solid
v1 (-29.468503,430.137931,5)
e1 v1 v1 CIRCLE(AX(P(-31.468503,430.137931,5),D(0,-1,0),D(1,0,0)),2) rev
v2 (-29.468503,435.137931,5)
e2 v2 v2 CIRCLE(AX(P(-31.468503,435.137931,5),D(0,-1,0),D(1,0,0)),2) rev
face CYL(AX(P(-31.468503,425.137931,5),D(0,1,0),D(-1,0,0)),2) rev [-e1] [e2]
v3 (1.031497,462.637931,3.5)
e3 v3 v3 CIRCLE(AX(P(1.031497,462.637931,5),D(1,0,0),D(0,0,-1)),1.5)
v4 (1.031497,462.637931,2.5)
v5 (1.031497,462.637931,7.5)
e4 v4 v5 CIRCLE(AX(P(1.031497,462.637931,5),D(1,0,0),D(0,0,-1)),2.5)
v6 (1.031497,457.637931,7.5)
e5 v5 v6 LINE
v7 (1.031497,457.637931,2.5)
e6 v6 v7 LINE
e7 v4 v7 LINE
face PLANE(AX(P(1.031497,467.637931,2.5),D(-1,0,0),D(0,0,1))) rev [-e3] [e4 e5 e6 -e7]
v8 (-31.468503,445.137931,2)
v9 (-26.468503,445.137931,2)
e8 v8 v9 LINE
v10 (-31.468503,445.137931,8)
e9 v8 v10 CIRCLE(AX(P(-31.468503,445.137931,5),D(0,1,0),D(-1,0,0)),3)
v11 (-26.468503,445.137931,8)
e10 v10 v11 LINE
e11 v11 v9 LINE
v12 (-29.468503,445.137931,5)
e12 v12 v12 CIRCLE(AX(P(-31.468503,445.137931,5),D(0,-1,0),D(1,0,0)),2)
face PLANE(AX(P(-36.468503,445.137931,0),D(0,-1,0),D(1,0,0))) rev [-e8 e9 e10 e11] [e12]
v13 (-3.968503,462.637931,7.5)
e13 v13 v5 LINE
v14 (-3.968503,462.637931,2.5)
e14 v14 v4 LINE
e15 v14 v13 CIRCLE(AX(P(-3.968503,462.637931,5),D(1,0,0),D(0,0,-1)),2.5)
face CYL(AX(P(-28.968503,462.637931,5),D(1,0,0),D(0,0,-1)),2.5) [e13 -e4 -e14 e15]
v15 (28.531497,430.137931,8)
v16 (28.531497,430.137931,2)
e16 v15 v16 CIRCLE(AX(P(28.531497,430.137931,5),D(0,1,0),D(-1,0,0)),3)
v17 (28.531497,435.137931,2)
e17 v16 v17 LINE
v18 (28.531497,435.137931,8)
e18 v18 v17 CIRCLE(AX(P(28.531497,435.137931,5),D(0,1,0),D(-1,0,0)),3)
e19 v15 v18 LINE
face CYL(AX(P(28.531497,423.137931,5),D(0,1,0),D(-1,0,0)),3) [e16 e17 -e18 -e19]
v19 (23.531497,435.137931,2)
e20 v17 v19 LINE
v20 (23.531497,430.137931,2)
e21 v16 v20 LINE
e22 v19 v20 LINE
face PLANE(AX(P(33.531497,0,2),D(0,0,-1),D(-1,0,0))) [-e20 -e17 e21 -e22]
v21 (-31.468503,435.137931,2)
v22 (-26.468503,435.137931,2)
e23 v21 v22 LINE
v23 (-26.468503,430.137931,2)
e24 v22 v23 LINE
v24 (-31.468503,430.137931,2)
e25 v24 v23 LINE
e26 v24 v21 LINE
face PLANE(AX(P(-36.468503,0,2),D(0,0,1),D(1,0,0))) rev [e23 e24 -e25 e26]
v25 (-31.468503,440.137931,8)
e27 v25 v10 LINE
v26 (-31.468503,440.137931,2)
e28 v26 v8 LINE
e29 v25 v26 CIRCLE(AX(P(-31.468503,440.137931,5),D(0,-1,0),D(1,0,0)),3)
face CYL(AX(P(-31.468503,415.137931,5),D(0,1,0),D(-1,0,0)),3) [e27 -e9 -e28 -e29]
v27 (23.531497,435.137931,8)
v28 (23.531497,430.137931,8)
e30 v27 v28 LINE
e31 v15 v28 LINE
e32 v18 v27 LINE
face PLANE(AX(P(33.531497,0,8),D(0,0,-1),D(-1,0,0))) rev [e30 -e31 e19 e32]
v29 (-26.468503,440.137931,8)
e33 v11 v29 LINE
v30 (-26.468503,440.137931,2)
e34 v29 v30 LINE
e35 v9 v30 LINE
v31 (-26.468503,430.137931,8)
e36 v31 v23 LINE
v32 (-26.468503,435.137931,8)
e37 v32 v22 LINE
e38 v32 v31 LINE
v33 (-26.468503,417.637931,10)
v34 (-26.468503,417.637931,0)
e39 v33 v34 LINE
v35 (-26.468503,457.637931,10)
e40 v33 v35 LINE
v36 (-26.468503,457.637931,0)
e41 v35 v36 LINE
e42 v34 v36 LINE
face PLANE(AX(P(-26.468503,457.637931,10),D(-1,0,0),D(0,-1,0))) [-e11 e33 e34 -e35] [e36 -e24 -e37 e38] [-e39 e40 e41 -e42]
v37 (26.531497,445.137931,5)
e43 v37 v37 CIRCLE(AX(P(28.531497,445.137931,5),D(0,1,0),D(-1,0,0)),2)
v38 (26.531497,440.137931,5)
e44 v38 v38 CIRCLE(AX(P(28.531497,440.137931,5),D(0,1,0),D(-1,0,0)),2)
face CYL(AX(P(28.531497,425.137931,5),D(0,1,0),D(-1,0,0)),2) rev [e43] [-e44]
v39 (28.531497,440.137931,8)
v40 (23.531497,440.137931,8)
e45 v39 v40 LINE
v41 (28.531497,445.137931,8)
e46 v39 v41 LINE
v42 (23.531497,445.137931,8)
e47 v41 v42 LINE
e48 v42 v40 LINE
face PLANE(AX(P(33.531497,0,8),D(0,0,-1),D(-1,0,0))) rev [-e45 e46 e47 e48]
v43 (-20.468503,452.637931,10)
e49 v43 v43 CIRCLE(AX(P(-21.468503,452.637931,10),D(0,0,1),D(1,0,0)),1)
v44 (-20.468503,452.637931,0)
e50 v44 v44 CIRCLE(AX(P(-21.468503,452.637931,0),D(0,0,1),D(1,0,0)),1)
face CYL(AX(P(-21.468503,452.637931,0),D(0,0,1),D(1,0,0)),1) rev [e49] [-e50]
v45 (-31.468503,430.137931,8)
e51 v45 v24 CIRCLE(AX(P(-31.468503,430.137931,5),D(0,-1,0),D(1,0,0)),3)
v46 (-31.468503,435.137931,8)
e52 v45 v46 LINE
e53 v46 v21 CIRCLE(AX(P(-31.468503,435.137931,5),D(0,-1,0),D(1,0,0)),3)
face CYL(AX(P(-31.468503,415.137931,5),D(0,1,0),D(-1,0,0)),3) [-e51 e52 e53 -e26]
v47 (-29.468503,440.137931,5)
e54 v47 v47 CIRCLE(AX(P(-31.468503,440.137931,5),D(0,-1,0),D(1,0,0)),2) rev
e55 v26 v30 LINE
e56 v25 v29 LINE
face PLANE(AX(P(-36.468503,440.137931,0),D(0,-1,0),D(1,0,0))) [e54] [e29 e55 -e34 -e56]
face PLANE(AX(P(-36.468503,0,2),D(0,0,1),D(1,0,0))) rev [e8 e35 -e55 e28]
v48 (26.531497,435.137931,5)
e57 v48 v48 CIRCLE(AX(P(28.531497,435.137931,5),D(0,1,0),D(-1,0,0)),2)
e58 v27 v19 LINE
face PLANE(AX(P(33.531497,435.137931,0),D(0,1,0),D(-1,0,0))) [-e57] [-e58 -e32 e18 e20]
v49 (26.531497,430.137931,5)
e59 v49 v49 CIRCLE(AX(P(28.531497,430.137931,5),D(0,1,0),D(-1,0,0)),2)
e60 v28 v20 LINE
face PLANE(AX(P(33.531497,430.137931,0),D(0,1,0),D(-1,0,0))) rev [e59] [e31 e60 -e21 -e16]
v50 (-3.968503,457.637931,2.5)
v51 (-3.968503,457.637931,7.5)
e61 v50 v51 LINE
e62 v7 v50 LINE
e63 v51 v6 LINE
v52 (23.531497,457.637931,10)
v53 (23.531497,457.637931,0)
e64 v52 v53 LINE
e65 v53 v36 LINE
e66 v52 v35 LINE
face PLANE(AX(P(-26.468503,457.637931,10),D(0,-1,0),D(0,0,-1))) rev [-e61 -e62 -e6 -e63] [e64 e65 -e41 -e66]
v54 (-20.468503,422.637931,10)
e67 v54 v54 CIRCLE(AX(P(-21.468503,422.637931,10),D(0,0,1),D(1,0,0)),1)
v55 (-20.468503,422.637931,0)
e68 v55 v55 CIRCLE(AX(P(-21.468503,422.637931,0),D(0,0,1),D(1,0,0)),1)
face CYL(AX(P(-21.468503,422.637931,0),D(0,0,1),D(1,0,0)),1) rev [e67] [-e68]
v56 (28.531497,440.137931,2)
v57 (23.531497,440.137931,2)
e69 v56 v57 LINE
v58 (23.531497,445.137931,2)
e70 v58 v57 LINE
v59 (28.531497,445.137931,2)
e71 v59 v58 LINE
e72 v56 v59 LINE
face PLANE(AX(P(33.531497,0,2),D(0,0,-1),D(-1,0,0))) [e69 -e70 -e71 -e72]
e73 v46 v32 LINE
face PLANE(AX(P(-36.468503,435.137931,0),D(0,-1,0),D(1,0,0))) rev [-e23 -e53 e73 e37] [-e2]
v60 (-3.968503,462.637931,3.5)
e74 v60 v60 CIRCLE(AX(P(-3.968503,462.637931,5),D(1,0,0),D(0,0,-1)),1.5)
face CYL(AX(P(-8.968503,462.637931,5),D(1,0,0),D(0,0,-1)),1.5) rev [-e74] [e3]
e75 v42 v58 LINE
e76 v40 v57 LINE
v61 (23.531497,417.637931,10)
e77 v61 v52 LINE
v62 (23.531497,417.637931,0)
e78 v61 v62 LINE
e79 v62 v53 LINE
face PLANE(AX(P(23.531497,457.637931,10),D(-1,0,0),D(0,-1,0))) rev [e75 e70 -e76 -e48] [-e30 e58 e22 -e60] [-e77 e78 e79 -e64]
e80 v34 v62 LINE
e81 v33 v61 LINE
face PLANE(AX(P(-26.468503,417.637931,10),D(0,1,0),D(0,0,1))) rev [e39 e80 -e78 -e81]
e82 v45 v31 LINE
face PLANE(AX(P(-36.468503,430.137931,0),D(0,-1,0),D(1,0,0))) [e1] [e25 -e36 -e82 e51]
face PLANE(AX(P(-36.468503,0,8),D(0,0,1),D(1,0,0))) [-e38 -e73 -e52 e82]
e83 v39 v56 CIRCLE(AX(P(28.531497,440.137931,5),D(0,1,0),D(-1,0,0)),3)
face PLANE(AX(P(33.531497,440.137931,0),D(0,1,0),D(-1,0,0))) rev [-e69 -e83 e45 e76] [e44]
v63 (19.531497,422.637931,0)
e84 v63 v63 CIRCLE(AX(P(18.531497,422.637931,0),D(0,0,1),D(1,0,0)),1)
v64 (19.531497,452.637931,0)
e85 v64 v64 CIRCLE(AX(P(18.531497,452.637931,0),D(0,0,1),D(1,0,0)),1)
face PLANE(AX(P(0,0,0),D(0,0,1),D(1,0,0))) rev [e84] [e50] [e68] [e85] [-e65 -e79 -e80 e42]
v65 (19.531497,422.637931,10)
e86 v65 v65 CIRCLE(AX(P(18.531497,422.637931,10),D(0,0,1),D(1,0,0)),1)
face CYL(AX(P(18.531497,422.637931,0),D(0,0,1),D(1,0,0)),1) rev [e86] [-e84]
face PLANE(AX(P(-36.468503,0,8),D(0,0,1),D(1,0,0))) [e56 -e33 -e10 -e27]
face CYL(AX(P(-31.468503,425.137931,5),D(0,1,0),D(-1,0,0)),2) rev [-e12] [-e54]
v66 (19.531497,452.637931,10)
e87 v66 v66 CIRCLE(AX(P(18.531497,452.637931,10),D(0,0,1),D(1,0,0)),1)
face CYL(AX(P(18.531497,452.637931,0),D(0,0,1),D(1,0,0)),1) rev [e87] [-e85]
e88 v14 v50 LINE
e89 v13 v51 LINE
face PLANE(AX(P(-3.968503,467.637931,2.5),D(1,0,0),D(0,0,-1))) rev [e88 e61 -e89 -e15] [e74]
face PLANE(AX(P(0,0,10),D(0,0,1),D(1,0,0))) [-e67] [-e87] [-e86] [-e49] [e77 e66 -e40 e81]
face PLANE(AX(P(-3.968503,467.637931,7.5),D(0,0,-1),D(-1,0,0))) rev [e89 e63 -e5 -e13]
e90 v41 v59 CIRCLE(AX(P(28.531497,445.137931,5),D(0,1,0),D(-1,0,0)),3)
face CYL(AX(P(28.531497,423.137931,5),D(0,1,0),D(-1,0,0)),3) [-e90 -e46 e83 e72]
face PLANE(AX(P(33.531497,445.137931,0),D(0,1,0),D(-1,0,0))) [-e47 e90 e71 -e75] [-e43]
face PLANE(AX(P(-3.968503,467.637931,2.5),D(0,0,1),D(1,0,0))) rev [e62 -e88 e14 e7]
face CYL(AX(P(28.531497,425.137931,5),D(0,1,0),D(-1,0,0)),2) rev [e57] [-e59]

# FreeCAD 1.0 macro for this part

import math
import FreeCAD as App
import Part
import Sketcher


def add_polygon(sketch, points):
    """Adds a closed chain of lines whose ends are joined by coincident constraints."""
    first, n = sketch.GeometryCount, len(points)
    for a, b in zip(points, points[1:] + points[:1]):
        sketch.addGeometry(Part.LineSegment(App.Vector(*a, 0), App.Vector(*b, 0)), False)
    for i in range(n):
        sketch.addConstraint(Sketcher.Constraint("Coincident", first + i, 2, first + (i + 1) % n, 1))

doc = App.newDocument("Part")
body = doc.addObject("PartDesign::Body", "Body")

# Sketch on XY plane
sketch1 = doc.addObject("Sketcher::SketchObject", "Sketch")
body.addObject(sketch1)
sketch1.AttachmentSupport = (doc.XY_Plane, [""])
sketch1.MapMode = "FlatFace"
add_polygon(sketch1, [(-26, 458), (-26, 418), (24, 418), (24, 458)])  # lines 0-3
sketch1.addConstraint(Sketcher.Constraint("Vertical", 0))
sketch1.addConstraint(Sketcher.Constraint("Horizontal", 1))
sketch1.addConstraint(Sketcher.Constraint("Vertical", 2))
sketch1.addConstraint(Sketcher.Constraint("Horizontal", 3))
sketch1.addConstraint(Sketcher.Constraint("DistanceX", 1, 1, 1, 2, 50.0))
sketch1.addConstraint(Sketcher.Constraint("DistanceY", 0, 2, 0, 1, 40.0))
sketch1.addConstraint(Sketcher.Constraint("DistanceY", -1, 1, 0, 2, 417.637931))
sketch1.addConstraint(Sketcher.Constraint("DistanceX", 0, 2, -1, 1, 26.468503))
pad1 = doc.addObject("PartDesign::Pad", "Pad")
body.addObject(pad1)
pad1.Profile = sketch1
pad1.Length = 10

# Sketch on YZ plane
sketch2 = doc.addObject("Sketcher::SketchObject", "Sketch001")
body.addObject(sketch2)
sketch2.AttachmentSupport = (doc.YZ_Plane, [""])
sketch2.MapMode = "FlatFace"
sketch2.AttachmentOffset = App.Placement(App.Vector(0, 0, 23.531497), App.Rotation())
add_polygon(sketch2, [(445, 8), (440, 8), (440, 2), (445, 2)])  # lines 0-3
add_polygon(sketch2, [(435, 8), (430, 8), (430, 2), (435, 2)])  # lines 4-7
sketch2.addConstraint(Sketcher.Constraint("Horizontal", 0))
sketch2.addConstraint(Sketcher.Constraint("Vertical", 1))
sketch2.addConstraint(Sketcher.Constraint("Horizontal", 2))
sketch2.addConstraint(Sketcher.Constraint("Vertical", 3))
sketch2.addConstraint(Sketcher.Constraint("Horizontal", 4))
sketch2.addConstraint(Sketcher.Constraint("Vertical", 5))
sketch2.addConstraint(Sketcher.Constraint("Horizontal", 6))
sketch2.addConstraint(Sketcher.Constraint("Vertical", 7))
sketch2.addConstraint(Sketcher.Constraint("Horizontal", 3, 2, 4, 2))
sketch2.addConstraint(Sketcher.Constraint("Horizontal", 2, 2, 5, 2))
sketch2.addConstraint(Sketcher.Constraint("Equal", 2, 4))
sketch2.addConstraint(Sketcher.Constraint("DistanceX", 0, 2, 0, 1, 5.0))
sketch2.addConstraint(Sketcher.Constraint("DistanceY", 1, 2, 1, 1, 6.0))
sketch2.addConstraint(Sketcher.Constraint("DistanceY", -1, 1, 0, 2, 8.0))
sketch2.addConstraint(Sketcher.Constraint("DistanceX", 4, 2, 0, 2, 10.0))
sketch2.addConstraint(Sketcher.Constraint("DistanceX", -1, 1, 0, 2, 440.137931))
pad2 = doc.addObject("PartDesign::Pad", "Pad001")
body.addObject(pad2)
pad2.Profile = sketch2
pad2.Length = 10

# Sketch on XZ plane
sketch3 = doc.addObject("Sketcher::SketchObject", "Sketch002")
body.addObject(sketch3)
sketch3.AttachmentSupport = (doc.XZ_Plane, [""])
sketch3.MapMode = "FlatFace"
sketch3.AttachmentOffset = App.Placement(App.Vector(0, 0, -445.137931), App.Rotation())
sketch3.addGeometry(Part.Circle(App.Vector(28.5, 5, 0), App.Vector(0, 0, 1), 2), False)
sketch3.addConstraint(Sketcher.Constraint("Diameter", 0, 4.0))
sketch3.addConstraint(Sketcher.Constraint("DistanceY", -1, 1, 0, 3, 5.0))
sketch3.addConstraint(Sketcher.Constraint("DistanceX", -1, 1, 0, 3, 28.531497))
pocket1 = doc.addObject("PartDesign::Pocket", "Pocket")
body.addObject(pocket1)
pocket1.Profile = sketch3
pocket1.Length = 20
pocket1.Reversed = True

# Sketch on YZ plane
sketch4 = doc.addObject("Sketcher::SketchObject", "Sketch003")
body.addObject(sketch4)
sketch4.AttachmentSupport = (doc.YZ_Plane, [""])
sketch4.MapMode = "FlatFace"
sketch4.AttachmentOffset = App.Placement(App.Vector(0, 0, -26.468503), App.Rotation())
add_polygon(sketch4, [(458, 0), (418, 0), (418, 10), (458, 10)])  # lines 0-3
sketch4.addConstraint(Sketcher.Constraint("Horizontal", 0))
sketch4.addConstraint(Sketcher.Constraint("Vertical", 1))
sketch4.addConstraint(Sketcher.Constraint("Horizontal", 2))
sketch4.addConstraint(Sketcher.Constraint("Vertical", 3))
sketch4.addConstraint(Sketcher.Constraint("PointOnObject", 0, 2, -1))
sketch4.addConstraint(Sketcher.Constraint("DistanceX", 0, 2, 0, 1, 40.0))
sketch4.addConstraint(Sketcher.Constraint("DistanceY", 1, 1, 1, 2, 10.0))
sketch4.addConstraint(Sketcher.Constraint("DistanceX", -1, 1, 0, 2, 417.637931))
pocket2 = doc.addObject("PartDesign::Pocket", "Pocket001")
body.addObject(pocket2)
pocket2.Profile = sketch4
pocket2.Length = 25
pocket2.Reversed = True
doc.recompute()

datumplane = doc.addObject("PartDesign::Plane", "DatumPlane")
body.addObject(datumplane)
datumplane.AttachmentSupport = (doc.YZ_Plane, [""])
datumplane.MapMode = "FlatFace"
datumplane.AttachmentOffset = App.Placement(App.Vector(0, 0, -1.468503), App.Rotation())
mirrored = doc.addObject("PartDesign::Mirrored", "Mirrored")
body.addObject(mirrored)
mirrored.Originals = [pad1, pad2, pocket1]
mirrored.MirrorPlane = (datumplane, [""])
body.Tip = mirrored

# Sketch on XZ plane
sketch5 = doc.addObject("Sketcher::SketchObject", "Sketch004")
body.addObject(sketch5)
sketch5.AttachmentSupport = (doc.XZ_Plane, [""])
sketch5.MapMode = "FlatFace"
sketch5.AttachmentOffset = App.Placement(App.Vector(0, 0, -457.637931), App.Rotation())
add_polygon(sketch5, [(-4, 2), (-4, 8), (1, 8), (1, 2)])  # lines 0-3
sketch5.addConstraint(Sketcher.Constraint("Vertical", 0))
sketch5.addConstraint(Sketcher.Constraint("Horizontal", 1))
sketch5.addConstraint(Sketcher.Constraint("Vertical", 2))
sketch5.addConstraint(Sketcher.Constraint("Horizontal", 3))
sketch5.addConstraint(Sketcher.Constraint("Equal", 3, 0))
sketch5.addConstraint(Sketcher.Constraint("DistanceX", 1, 1, 1, 2, 5.0))
sketch5.addConstraint(Sketcher.Constraint("DistanceY", -1, 1, 0, 2, 7.5))
sketch5.addConstraint(Sketcher.Constraint("DistanceX", 0, 2, -1, 1, 3.968503))
pad3 = doc.addObject("PartDesign::Pad", "Pad002")
body.addObject(pad3)
pad3.Profile = sketch5
pad3.Length = 10
pad3.Reversed = True

# Sketch on YZ plane
sketch6 = doc.addObject("Sketcher::SketchObject", "Sketch005")
body.addObject(sketch6)
sketch6.AttachmentSupport = (doc.YZ_Plane, [""])
sketch6.MapMode = "FlatFace"
sketch6.AttachmentOffset = App.Placement(App.Vector(0, 0, 1.031497), App.Rotation())
sketch6.addGeometry(Part.Circle(App.Vector(462.6, 5, 0), App.Vector(0, 0, 1), 1.5), False)
sketch6.addConstraint(Sketcher.Constraint("Diameter", 0, 3.0))
sketch6.addConstraint(Sketcher.Constraint("DistanceY", -1, 1, 0, 3, 5.0))
sketch6.addConstraint(Sketcher.Constraint("DistanceX", -1, 1, 0, 3, 462.637931))
pocket3 = doc.addObject("PartDesign::Pocket", "Pocket002")
body.addObject(pocket3)
pocket3.Profile = sketch6
pocket3.Length = 10

# Sketch on XY plane
sketch7 = doc.addObject("Sketcher::SketchObject", "Sketch006")
body.addObject(sketch7)
sketch7.AttachmentSupport = (doc.XY_Plane, [""])
sketch7.MapMode = "FlatFace"
sketch7.AttachmentOffset = App.Placement(App.Vector(0, 0, 10), App.Rotation())
sketch7.addGeometry(Part.Circle(App.Vector(-21.5, 452.6, 0), App.Vector(0, 0, 1), 1), False)
sketch7.addGeometry(Part.Circle(App.Vector(-21.5, 422.6, 0), App.Vector(0, 0, 1), 1), False)
sketch7.addGeometry(Part.Circle(App.Vector(18.5, 452.6, 0), App.Vector(0, 0, 1), 1), False)
sketch7.addGeometry(Part.Circle(App.Vector(18.5, 422.6, 0), App.Vector(0, 0, 1), 1), False)
sketch7.addConstraint(Sketcher.Constraint("Equal", 0, 1))
sketch7.addConstraint(Sketcher.Constraint("Equal", 1, 2))
sketch7.addConstraint(Sketcher.Constraint("Equal", 2, 3))
sketch7.addConstraint(Sketcher.Constraint("Horizontal", 0, 3, 2, 3))
sketch7.addConstraint(Sketcher.Constraint("Horizontal", 1, 3, 3, 3))
sketch7.addConstraint(Sketcher.Constraint("Vertical", 0, 3, 1, 3))
sketch7.addConstraint(Sketcher.Constraint("Vertical", 2, 3, 3, 3))
sketch7.addConstraint(Sketcher.Constraint("Diameter", 0, 2.0))
sketch7.addConstraint(Sketcher.Constraint("DistanceY", 1, 3, 0, 3, 30.0))
sketch7.addConstraint(Sketcher.Constraint("DistanceX", 0, 3, 2, 3, 40.0))
sketch7.addConstraint(Sketcher.Constraint("DistanceY", -1, 1, 0, 3, 452.637931))
sketch7.addConstraint(Sketcher.Constraint("DistanceX", 0, 3, -1, 1, 21.468503))
pocket4 = doc.addObject("PartDesign::Pocket", "Pocket003")
body.addObject(pocket4)
pocket4.Profile = sketch7
pocket4.Length = 10

# Sketch on XZ plane
sketch8 = doc.addObject("Sketcher::SketchObject", "Sketch007")
body.addObject(sketch8)
sketch8.AttachmentSupport = (doc.XZ_Plane, [""])
sketch8.MapMode = "FlatFace"
sketch8.AttachmentOffset = App.Placement(App.Vector(0, 0, -445.137931), App.Rotation())
sketch8.addGeometry(Part.LineSegment(App.Vector(33.5, 2, 0), App.Vector(28.5, 2, 0)), False)
sketch8.addGeometry(Part.ArcOfCircle(Part.Circle(App.Vector(28.5, 5, 0), App.Vector(0, 0, 1), 3), math.radians(-90), math.radians(0)), False)
sketch8.addGeometry(Part.ArcOfCircle(Part.Circle(App.Vector(28.5, 5, 0), App.Vector(0, 0, 1), 3), math.radians(0), math.radians(90)), False)
sketch8.addGeometry(Part.LineSegment(App.Vector(28.5, 8, 0), App.Vector(33.5, 8, 0)), False)
sketch8.addGeometry(Part.LineSegment(App.Vector(33.5, 8, 0), App.Vector(33.5, 2, 0)), False)
sketch8.addConstraint(Sketcher.Constraint("Tangent", 0, 2, 1, 1))
sketch8.addConstraint(Sketcher.Constraint("Tangent", 1, 2, 2, 1))
sketch8.addConstraint(Sketcher.Constraint("Tangent", 2, 2, 3, 1))
sketch8.addConstraint(Sketcher.Constraint("Coincident", 3, 2, 4, 1))
sketch8.addConstraint(Sketcher.Constraint("Coincident", 4, 2, 0, 1))
sketch8.addConstraint(Sketcher.Constraint("Horizontal", 0))
sketch8.addConstraint(Sketcher.Constraint("Horizontal", 3))
sketch8.addConstraint(Sketcher.Constraint("Vertical", 4))
sketch8.addConstraint(Sketcher.Constraint("Equal", 1, 2))
sketch8.addConstraint(Sketcher.Constraint("Horizontal", 2, 3, 1, 2))
sketch8.addConstraint(Sketcher.Constraint("Radius", 1, 3.0))
sketch8.addConstraint(Sketcher.Constraint("DistanceX", 0, 2, 0, 1, 5.0))
sketch8.addConstraint(Sketcher.Constraint("DistanceY", -1, 1, 1, 3, 5.0))
sketch8.addConstraint(Sketcher.Constraint("DistanceX", -1, 1, 1, 3, 28.531497))
pocket5 = doc.addObject("PartDesign::Pocket", "Pocket004")
body.addObject(pocket5)
pocket5.Profile = sketch8
pocket5.Length = 22
pocket5.Reversed = True

# Sketch on XZ plane
sketch9 = doc.addObject("Sketcher::SketchObject", "Sketch008")
body.addObject(sketch9)
sketch9.AttachmentSupport = (doc.XZ_Plane, [""])
sketch9.MapMode = "FlatFace"
sketch9.AttachmentOffset = App.Placement(App.Vector(0, 0, -445.137931), App.Rotation())
sketch9.addGeometry(Part.LineSegment(App.Vector(-36.5, 8, 0), App.Vector(-31.5, 8, 0)), False)
sketch9.addGeometry(Part.ArcOfCircle(Part.Circle(App.Vector(-31.5, 5, 0), App.Vector(0, 0, 1), 3), math.radians(90), math.radians(270)), False)
sketch9.addGeometry(Part.LineSegment(App.Vector(-31.5, 2, 0), App.Vector(-36.5, 2, 0)), False)
sketch9.addGeometry(Part.LineSegment(App.Vector(-36.5, 2, 0), App.Vector(-36.5, 8, 0)), False)
sketch9.addConstraint(Sketcher.Constraint("Tangent", 0, 2, 1, 1))
sketch9.addConstraint(Sketcher.Constraint("Tangent", 1, 2, 2, 1))
sketch9.addConstraint(Sketcher.Constraint("Coincident", 2, 2, 3, 1))
sketch9.addConstraint(Sketcher.Constraint("Coincident", 3, 2, 0, 1))
sketch9.addConstraint(Sketcher.Constraint("Horizontal", 0))
sketch9.addConstraint(Sketcher.Constraint("Horizontal", 2))
sketch9.addConstraint(Sketcher.Constraint("Vertical", 3))
sketch9.addConstraint(Sketcher.Constraint("Radius", 1, 3.0))
sketch9.addConstraint(Sketcher.Constraint("DistanceX", 0, 1, 0, 2, 5.0))
sketch9.addConstraint(Sketcher.Constraint("DistanceY", -1, 1, 1, 3, 5.0))
sketch9.addConstraint(Sketcher.Constraint("DistanceX", 1, 3, -1, 1, 31.468503))
pocket6 = doc.addObject("PartDesign::Pocket", "Pocket005")
body.addObject(pocket6)
pocket6.Profile = sketch9
pocket6.Length = 30
pocket6.Reversed = True

# Sketch on YZ plane
sketch10 = doc.addObject("Sketcher::SketchObject", "Sketch009")
body.addObject(sketch10)
sketch10.AttachmentSupport = (doc.YZ_Plane, [""])
sketch10.MapMode = "FlatFace"
sketch10.AttachmentOffset = App.Placement(App.Vector(0, 0, 1.031497), App.Rotation())
sketch10.addGeometry(Part.LineSegment(App.Vector(467.6, 7.5, 0), App.Vector(462.6, 7.5, 0)), False)
sketch10.addGeometry(Part.ArcOfCircle(Part.Circle(App.Vector(462.6, 5, 0), App.Vector(0, 0, 1), 2.5), math.radians(-90), math.radians(90)), False)
sketch10.addGeometry(Part.LineSegment(App.Vector(462.6, 2.5, 0), App.Vector(467.6, 2.5, 0)), False)
sketch10.addGeometry(Part.LineSegment(App.Vector(467.6, 2.5, 0), App.Vector(467.6, 7.5, 0)), False)
sketch10.addConstraint(Sketcher.Constraint("Tangent", 0, 2, 1, 2))
sketch10.addConstraint(Sketcher.Constraint("Tangent", 1, 1, 2, 1))
sketch10.addConstraint(Sketcher.Constraint("Coincident", 2, 2, 3, 1))
sketch10.addConstraint(Sketcher.Constraint("Coincident", 3, 2, 0, 1))
sketch10.addConstraint(Sketcher.Constraint("Horizontal", 0))
sketch10.addConstraint(Sketcher.Constraint("Horizontal", 2))
sketch10.addConstraint(Sketcher.Constraint("Vertical", 3))
sketch10.addConstraint(Sketcher.Constraint("Equal", 2, 3))
sketch10.addConstraint(Sketcher.Constraint("Radius", 1, 2.5))
sketch10.addConstraint(Sketcher.Constraint("DistanceY", -1, 1, 1, 3, 5.0))
sketch10.addConstraint(Sketcher.Constraint("DistanceX", -1, 1, 1, 3, 462.637931))
pocket7 = doc.addObject("PartDesign::Pocket", "Pocket006")
body.addObject(pocket7)
pocket7.Profile = sketch10
pocket7.Length = 30

doc.recompute()
